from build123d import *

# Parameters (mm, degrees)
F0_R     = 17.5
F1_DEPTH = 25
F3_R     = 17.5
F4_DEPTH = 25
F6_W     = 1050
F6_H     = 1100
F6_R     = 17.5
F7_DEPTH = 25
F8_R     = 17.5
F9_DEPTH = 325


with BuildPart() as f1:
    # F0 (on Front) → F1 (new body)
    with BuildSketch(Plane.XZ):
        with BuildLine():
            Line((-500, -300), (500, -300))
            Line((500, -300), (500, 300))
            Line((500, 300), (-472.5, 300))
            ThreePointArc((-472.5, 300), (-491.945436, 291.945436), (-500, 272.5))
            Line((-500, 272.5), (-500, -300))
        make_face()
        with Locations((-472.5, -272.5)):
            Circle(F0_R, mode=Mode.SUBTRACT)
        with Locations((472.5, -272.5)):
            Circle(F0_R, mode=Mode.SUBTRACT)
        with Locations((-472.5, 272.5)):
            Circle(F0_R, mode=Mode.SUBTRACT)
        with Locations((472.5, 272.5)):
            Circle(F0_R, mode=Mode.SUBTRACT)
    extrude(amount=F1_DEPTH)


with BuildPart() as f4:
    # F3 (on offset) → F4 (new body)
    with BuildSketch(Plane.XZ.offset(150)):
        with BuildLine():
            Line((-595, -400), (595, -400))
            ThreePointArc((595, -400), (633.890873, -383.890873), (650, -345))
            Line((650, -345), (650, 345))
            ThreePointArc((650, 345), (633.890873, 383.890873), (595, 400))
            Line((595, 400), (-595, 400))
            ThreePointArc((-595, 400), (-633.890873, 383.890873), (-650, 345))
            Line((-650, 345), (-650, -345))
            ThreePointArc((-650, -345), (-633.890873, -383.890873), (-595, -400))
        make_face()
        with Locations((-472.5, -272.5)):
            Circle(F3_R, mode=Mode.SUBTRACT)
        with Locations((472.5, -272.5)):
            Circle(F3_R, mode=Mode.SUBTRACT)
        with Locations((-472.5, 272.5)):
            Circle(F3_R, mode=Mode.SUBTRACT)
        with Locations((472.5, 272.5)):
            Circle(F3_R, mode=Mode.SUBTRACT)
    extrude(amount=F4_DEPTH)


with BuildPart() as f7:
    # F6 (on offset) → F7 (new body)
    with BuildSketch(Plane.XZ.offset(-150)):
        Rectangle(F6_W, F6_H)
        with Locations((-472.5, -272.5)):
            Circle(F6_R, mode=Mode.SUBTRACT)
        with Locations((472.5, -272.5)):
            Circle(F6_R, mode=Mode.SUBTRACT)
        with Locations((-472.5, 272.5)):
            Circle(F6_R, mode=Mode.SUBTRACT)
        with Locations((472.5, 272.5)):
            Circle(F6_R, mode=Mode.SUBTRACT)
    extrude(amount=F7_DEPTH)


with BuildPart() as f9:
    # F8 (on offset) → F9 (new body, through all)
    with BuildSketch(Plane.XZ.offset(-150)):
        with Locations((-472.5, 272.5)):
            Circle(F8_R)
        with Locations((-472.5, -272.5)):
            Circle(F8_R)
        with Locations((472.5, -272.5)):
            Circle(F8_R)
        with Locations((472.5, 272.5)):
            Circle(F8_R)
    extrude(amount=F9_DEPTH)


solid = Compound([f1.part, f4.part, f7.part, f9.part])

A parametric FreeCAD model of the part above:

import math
import FreeCAD as App
import Part
import Sketcher

doc = App.newDocument("Part")
body = doc.addObject("PartDesign::Body", "Body")

sketch1 = body.newObject("Sketcher::SketchObject", "Sketch")
sketch1.AttachmentSupport = (doc.getObject("XZ_Plane"), [""])
sketch1.MapMode = "FlatFace"
sketch1.addGeometry([
    Part.LineSegment(App.Vector(-500, -300, 0), App.Vector(500, -300, 0)),
    Part.LineSegment(App.Vector(500, -300, 0), App.Vector(500, 300, 0)),
    Part.LineSegment(App.Vector(500, 300, 0), App.Vector(-472, 300, 0)),
    Part.ArcOfCircle(Part.Circle(App.Vector(-472, 272, 0), App.Vector(0, 0, 1), 28), math.radians(90), math.radians(180)),
    Part.LineSegment(App.Vector(-500, 272, 0), App.Vector(-500, -300, 0)),
    Part.Circle(App.Vector(-472, -272, 0), App.Vector(0, 0, 1), 18),
    Part.Circle(App.Vector(472, -272, 0), App.Vector(0, 0, 1), 18),
    Part.Circle(App.Vector(-472, 272, 0), App.Vector(0, 0, 1), 18),
    Part.Circle(App.Vector(472, 272, 0), App.Vector(0, 0, 1), 18),
], False)
sketch1.addConstraint([
    Sketcher.Constraint("Coincident", 0, 2, 1, 1),
    Sketcher.Constraint("Coincident", 1, 2, 2, 1),
    Sketcher.Constraint("Tangent", 2, 2, 3, 1),
    Sketcher.Constraint("Tangent", 3, 2, 4, 1),
    Sketcher.Constraint("Coincident", 4, 2, 0, 1),
    Sketcher.Constraint("Horizontal", 0),
    Sketcher.Constraint("Vertical", 1),
    Sketcher.Constraint("Horizontal", 2),
    Sketcher.Constraint("Vertical", 4),
    Sketcher.Constraint("Coincident", 7, 3, 3, 3),
    Sketcher.Constraint("Equal", 5, 6),
    Sketcher.Constraint("Equal", 6, 7),
    Sketcher.Constraint("Equal", 7, 8),
    Sketcher.Constraint("Symmetric", 3, 3, 6, 3, -1, 1),
    Sketcher.Constraint("Symmetric", 5, 3, 8, 3, -1, 1),
    Sketcher.Constraint("Symmetric", 1, 2, 4, 2, -1, 1),
    Sketcher.Constraint("Symmetric", 5, 3, 6, 3, -2),
    Sketcher.Constraint("Diameter", 5, 35.0),
    Sketcher.Constraint("Radius", 3, 27.500002),
    Sketcher.Constraint("DistanceX", 0, 1, 0, 2, 1000.0),
    Sketcher.Constraint("DistanceY", 1, 1, 1, 2, 600.0),
])
pad1 = body.newObject("PartDesign::Pad", "Pad")
pad1.Profile = sketch1
pad1.Length = 25
body2 = doc.addObject("PartDesign::Body", "Body001")

sketch2 = body2.newObject("Sketcher::SketchObject", "Sketch001")
sketch2.AttachmentSupport = (doc.getObject("XZ_Plane001"), [""])
sketch2.MapMode = "FlatFace"
sketch2.AttachmentOffset = App.Placement(App.Vector(0, 0, 150), App.Rotation())
sketch2.addGeometry([
    Part.LineSegment(App.Vector(-595, -400, 0), App.Vector(595, -400, 0)),
    Part.ArcOfCircle(Part.Circle(App.Vector(595, -345, 0), App.Vector(0, 0, 1), 55), math.radians(-90), math.radians(0)),
    Part.LineSegment(App.Vector(650, -345, 0), App.Vector(650, 345, 0)),
    Part.ArcOfCircle(Part.Circle(App.Vector(595, 345, 0), App.Vector(0, 0, 1), 55), math.radians(0), math.radians(90)),
    Part.LineSegment(App.Vector(595, 400, 0), App.Vector(-595, 400, 0)),
    Part.ArcOfCircle(Part.Circle(App.Vector(-595, 345, 0), App.Vector(0, 0, 1), 55), math.radians(90), math.radians(180)),
    Part.LineSegment(App.Vector(-650, 345, 0), App.Vector(-650, -345, 0)),
    Part.ArcOfCircle(Part.Circle(App.Vector(-595, -345, 0), App.Vector(0, 0, 1), 55), math.radians(180), math.radians(270)),
    Part.Circle(App.Vector(-472, -272, 0), App.Vector(0, 0, 1), 18),
    Part.Circle(App.Vector(472, -272, 0), App.Vector(0, 0, 1), 18),
    Part.Circle(App.Vector(-472, 272, 0), App.Vector(0, 0, 1), 18),
    Part.Circle(App.Vector(472, 272, 0), App.Vector(0, 0, 1), 18),
], False)
sketch2.addConstraint([
    Sketcher.Constraint("Tangent", 0, 2, 1, 1),
    Sketcher.Constraint("Tangent", 1, 2, 2, 1),
    Sketcher.Constraint("Tangent", 2, 2, 3, 1),
    Sketcher.Constraint("Tangent", 3, 2, 4, 1),
    Sketcher.Constraint("Tangent", 4, 2, 5, 1),
    Sketcher.Constraint("Tangent", 5, 2, 6, 1),
    Sketcher.Constraint("Tangent", 6, 2, 7, 1),
    Sketcher.Constraint("Tangent", 7, 2, 0, 1),
    Sketcher.Constraint("Horizontal", 0),
    Sketcher.Constraint("Vertical", 2),
    Sketcher.Constraint("Horizontal", 4),
    Sketcher.Constraint("Vertical", 6),
    Sketcher.Constraint("Equal", 1, 3),
    Sketcher.Constraint("Equal", 3, 5),
    Sketcher.Constraint("Equal", 5, 7),
    Sketcher.Constraint("Equal", 8, 9),
    Sketcher.Constraint("Equal", 9, 10),
    Sketcher.Constraint("Equal", 10, 11),
    Sketcher.Constraint("Symmetric", 1, 3, 5, 3, -1, 1),
    Sketcher.Constraint("Symmetric", 9, 3, 10, 3, -1, 1),
    Sketcher.Constraint("Symmetric", 8, 3, 11, 3, -1, 1),
    Sketcher.Constraint("Symmetric", 8, 3, 9, 3, -2),
    Sketcher.Constraint("Diameter", 8, 35.0),
    Sketcher.Constraint("Radius", 1, 55.0),
    Sketcher.Constraint("DistanceX", 0, 1, 0, 2, 1190.0),
    Sketcher.Constraint("DistanceY", 2, 1, 2, 2, 690.0),
    Sketcher.Constraint("DistanceX", 8, 3, 9, 3, 945.0),
    Sketcher.Constraint("DistanceY", 8, 3, 10, 3, 545.0),
])
pad2 = body2.newObject("PartDesign::Pad", "Pad001")
pad2.Profile = sketch2
pad2.Length = 25
body3 = doc.addObject("PartDesign::Body", "Body002")

sketch3 = body3.newObject("Sketcher::SketchObject", "Sketch002")
sketch3.AttachmentSupport = (doc.getObject("XZ_Plane002"), [""])
sketch3.MapMode = "FlatFace"
sketch3.AttachmentOffset = App.Placement(App.Vector(0, 0, -150), App.Rotation())
sketch3.addGeometry([
    Part.LineSegment(App.Vector(-525, 550, 0), App.Vector(-525, -550, 0)),
    Part.LineSegment(App.Vector(-525, -550, 0), App.Vector(525, -550, 0)),
    Part.LineSegment(App.Vector(525, -550, 0), App.Vector(525, 550, 0)),
    Part.LineSegment(App.Vector(525, 550, 0), App.Vector(-525, 550, 0)),
    Part.Circle(App.Vector(-472, -272, 0), App.Vector(0, 0, 1), 18),
    Part.Circle(App.Vector(472, -272, 0), App.Vector(0, 0, 1), 18),
    Part.Circle(App.Vector(-472, 272, 0), App.Vector(0, 0, 1), 18),
    Part.Circle(App.Vector(472, 272, 0), App.Vector(0, 0, 1), 18),
], False)
sketch3.addConstraint([
    Sketcher.Constraint("Coincident", 0, 2, 1, 1),
    Sketcher.Constraint("Coincident", 1, 2, 2, 1),
    Sketcher.Constraint("Coincident", 2, 2, 3, 1),
    Sketcher.Constraint("Coincident", 3, 2, 0, 1),
    Sketcher.Constraint("Vertical", 0),
    Sketcher.Constraint("Horizontal", 1),
    Sketcher.Constraint("Vertical", 2),
    Sketcher.Constraint("Horizontal", 3),
    Sketcher.Constraint("Equal", 4, 5),
    Sketcher.Constraint("Equal", 5, 6),
    Sketcher.Constraint("Equal", 6, 7),
    Sketcher.Constraint("Symmetric", 5, 3, 6, 3, -1, 1),
    Sketcher.Constraint("Symmetric", 4, 3, 7, 3, -1, 1),
    Sketcher.Constraint("Symmetric", 0, 2, 2, 2, -1, 1),
    Sketcher.Constraint("Symmetric", 4, 3, 5, 3, -2),
    Sketcher.Constraint("Diameter", 4, 35.0),
    Sketcher.Constraint("DistanceX", 1, 1, 1, 2, 1050.0),
    Sketcher.Constraint("DistanceY", 0, 2, 0, 1, 1100.0),
    Sketcher.Constraint("DistanceX", 4, 3, 5, 3, 945.0),
    Sketcher.Constraint("DistanceY", 4, 3, 6, 3, 545.0),
])
pad3 = body3.newObject("PartDesign::Pad", "Pad002")
pad3.Profile = sketch3
pad3.Length = 25
body4 = doc.addObject("PartDesign::Body", "Body003")
body4.AllowCompound = True

sketch4 = body4.newObject("Sketcher::SketchObject", "Sketch003")
sketch4.AttachmentSupport = (doc.getObject("XZ_Plane003"), [""])
sketch4.MapMode = "FlatFace"
sketch4.AttachmentOffset = App.Placement(App.Vector(0, 0, -150), App.Rotation())
sketch4.addGeometry([
    Part.Circle(App.Vector(-472, 272, 0), App.Vector(0, 0, 1), 18),
    Part.Circle(App.Vector(-472, -272, 0), App.Vector(0, 0, 1), 18),
    Part.Circle(App.Vector(472, -272, 0), App.Vector(0, 0, 1), 18),
    Part.Circle(App.Vector(472, 272, 0), App.Vector(0, 0, 1), 18),
], False)
sketch4.addConstraint([
    Sketcher.Constraint("Equal", 0, 1),
    Sketcher.Constraint("Equal", 1, 2),
    Sketcher.Constraint("Equal", 2, 3),
    Sketcher.Constraint("Symmetric", 0, 3, 2, 3, -1, 1),
    Sketcher.Constraint("Symmetric", 1, 3, 3, 3, -1, 1),
    Sketcher.Constraint("Symmetric", 1, 3, 2, 3, -2),
    Sketcher.Constraint("Diameter", 0, 35.0),
    Sketcher.Constraint("DistanceY", 1, 3, 0, 3, 545.0),
    Sketcher.Constraint("DistanceX", 1, 3, 2, 3, 945.0),
])
pad4 = body4.newObject("PartDesign::Pad", "Pad003")
pad4.Profile = sketch4
pad4.Length = 325

doc.recompute()
